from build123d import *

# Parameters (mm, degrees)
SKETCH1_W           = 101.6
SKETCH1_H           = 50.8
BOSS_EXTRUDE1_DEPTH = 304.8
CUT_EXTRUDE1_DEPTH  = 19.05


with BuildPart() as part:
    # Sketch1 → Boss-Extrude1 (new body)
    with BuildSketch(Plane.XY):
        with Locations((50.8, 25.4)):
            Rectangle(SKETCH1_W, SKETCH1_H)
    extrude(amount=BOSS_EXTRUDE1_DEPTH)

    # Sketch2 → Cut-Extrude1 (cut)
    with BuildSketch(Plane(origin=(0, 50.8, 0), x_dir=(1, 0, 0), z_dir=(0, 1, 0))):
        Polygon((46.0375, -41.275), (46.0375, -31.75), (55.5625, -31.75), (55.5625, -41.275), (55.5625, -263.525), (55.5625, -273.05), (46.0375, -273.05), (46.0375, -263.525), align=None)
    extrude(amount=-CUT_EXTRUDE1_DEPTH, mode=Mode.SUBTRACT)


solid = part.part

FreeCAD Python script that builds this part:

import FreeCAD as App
import Part
import Sketcher

V = App.Vector
Q = App.Units.Quantity


def add_polygon(sketch, points):
    """Adds a closed chain of lines whose ends are joined by coincident constraints."""
    first, n = sketch.GeometryCount, len(points)
    for a, b in zip(points, points[1:] + points[:1]):
        sketch.addGeometry(Part.LineSegment(App.Vector(*a, 0), App.Vector(*b, 0)), False)
    for i in range(n):
        sketch.addConstraint(Sketcher.Constraint("Coincident", first + i, 2, first + (i + 1) % n, 1))

doc = App.newDocument("Part")
body = doc.addObject("PartDesign::Body", "Body")

sketch1 = body.newObject("Sketcher::SketchObject", "Sketch")
sketch1.AttachmentSupport = (doc.getObject("XY_Plane"), [""])
sketch1.MapMode = "FlatFace"
add_polygon(sketch1, [(0, 50.8), (0, 0), (101.6, 0), (101.6, 50.8)])
sketch1.addConstraint([
    Sketcher.Constraint("Vertical", 0),
    Sketcher.Constraint("Horizontal", 1),
    Sketcher.Constraint("Vertical", 2),
    Sketcher.Constraint("Horizontal", 3),
    Sketcher.Constraint("Coincident", 0, 2, -1, 1),
    Sketcher.Constraint("DistanceX", 1, 1, 1, 2, Q("4 in")),
    Sketcher.Constraint("DistanceY", 0, 2, 0, 1, Q("2 in")),
])
pad1 = body.newObject("PartDesign::Pad", "Pad")
pad1.Profile = sketch1
pad1.Length = Q("12 in")

sketch2 = body.newObject("Sketcher::SketchObject", "Sketch001")
sketch2.AttachmentSupport = (doc.getObject("XZ_Plane"), [""])
sketch2.MapMode = "FlatFace"
sketch2.AttachmentOffset = App.Placement(V(0, 0, -2 * 25.4), App.Rotation())
add_polygon(sketch2, [(46.0375, 31.75), (46.0375, 273.05), (55.5625, 273.05), (55.5625, 31.75)])
sketch2.addConstraint([
    Sketcher.Constraint("Vertical", 0),
    Sketcher.Constraint("Horizontal", 1),
    Sketcher.Constraint("Vertical", 2),
    Sketcher.Constraint("Horizontal", 3),
    Sketcher.Constraint("DistanceY", 0, 1, 0, 2, Q("9.5 in")),
    Sketcher.Constraint("DistanceX", 1, 1, 1, 2, Q("0.375 in")),
    Sketcher.Constraint("DistanceY", -1, 1, 0, 2, Q("10.75 in")),
    Sketcher.Constraint("DistanceX", -1, 1, 0, 2, Q("1.8125 in")),
])
pocket1 = body.newObject("PartDesign::Pocket", "Pocket")
pocket1.Profile = sketch2
pocket1.Length = Q("0.75 in")
pocket1.Reversed = True

doc.recompute()
